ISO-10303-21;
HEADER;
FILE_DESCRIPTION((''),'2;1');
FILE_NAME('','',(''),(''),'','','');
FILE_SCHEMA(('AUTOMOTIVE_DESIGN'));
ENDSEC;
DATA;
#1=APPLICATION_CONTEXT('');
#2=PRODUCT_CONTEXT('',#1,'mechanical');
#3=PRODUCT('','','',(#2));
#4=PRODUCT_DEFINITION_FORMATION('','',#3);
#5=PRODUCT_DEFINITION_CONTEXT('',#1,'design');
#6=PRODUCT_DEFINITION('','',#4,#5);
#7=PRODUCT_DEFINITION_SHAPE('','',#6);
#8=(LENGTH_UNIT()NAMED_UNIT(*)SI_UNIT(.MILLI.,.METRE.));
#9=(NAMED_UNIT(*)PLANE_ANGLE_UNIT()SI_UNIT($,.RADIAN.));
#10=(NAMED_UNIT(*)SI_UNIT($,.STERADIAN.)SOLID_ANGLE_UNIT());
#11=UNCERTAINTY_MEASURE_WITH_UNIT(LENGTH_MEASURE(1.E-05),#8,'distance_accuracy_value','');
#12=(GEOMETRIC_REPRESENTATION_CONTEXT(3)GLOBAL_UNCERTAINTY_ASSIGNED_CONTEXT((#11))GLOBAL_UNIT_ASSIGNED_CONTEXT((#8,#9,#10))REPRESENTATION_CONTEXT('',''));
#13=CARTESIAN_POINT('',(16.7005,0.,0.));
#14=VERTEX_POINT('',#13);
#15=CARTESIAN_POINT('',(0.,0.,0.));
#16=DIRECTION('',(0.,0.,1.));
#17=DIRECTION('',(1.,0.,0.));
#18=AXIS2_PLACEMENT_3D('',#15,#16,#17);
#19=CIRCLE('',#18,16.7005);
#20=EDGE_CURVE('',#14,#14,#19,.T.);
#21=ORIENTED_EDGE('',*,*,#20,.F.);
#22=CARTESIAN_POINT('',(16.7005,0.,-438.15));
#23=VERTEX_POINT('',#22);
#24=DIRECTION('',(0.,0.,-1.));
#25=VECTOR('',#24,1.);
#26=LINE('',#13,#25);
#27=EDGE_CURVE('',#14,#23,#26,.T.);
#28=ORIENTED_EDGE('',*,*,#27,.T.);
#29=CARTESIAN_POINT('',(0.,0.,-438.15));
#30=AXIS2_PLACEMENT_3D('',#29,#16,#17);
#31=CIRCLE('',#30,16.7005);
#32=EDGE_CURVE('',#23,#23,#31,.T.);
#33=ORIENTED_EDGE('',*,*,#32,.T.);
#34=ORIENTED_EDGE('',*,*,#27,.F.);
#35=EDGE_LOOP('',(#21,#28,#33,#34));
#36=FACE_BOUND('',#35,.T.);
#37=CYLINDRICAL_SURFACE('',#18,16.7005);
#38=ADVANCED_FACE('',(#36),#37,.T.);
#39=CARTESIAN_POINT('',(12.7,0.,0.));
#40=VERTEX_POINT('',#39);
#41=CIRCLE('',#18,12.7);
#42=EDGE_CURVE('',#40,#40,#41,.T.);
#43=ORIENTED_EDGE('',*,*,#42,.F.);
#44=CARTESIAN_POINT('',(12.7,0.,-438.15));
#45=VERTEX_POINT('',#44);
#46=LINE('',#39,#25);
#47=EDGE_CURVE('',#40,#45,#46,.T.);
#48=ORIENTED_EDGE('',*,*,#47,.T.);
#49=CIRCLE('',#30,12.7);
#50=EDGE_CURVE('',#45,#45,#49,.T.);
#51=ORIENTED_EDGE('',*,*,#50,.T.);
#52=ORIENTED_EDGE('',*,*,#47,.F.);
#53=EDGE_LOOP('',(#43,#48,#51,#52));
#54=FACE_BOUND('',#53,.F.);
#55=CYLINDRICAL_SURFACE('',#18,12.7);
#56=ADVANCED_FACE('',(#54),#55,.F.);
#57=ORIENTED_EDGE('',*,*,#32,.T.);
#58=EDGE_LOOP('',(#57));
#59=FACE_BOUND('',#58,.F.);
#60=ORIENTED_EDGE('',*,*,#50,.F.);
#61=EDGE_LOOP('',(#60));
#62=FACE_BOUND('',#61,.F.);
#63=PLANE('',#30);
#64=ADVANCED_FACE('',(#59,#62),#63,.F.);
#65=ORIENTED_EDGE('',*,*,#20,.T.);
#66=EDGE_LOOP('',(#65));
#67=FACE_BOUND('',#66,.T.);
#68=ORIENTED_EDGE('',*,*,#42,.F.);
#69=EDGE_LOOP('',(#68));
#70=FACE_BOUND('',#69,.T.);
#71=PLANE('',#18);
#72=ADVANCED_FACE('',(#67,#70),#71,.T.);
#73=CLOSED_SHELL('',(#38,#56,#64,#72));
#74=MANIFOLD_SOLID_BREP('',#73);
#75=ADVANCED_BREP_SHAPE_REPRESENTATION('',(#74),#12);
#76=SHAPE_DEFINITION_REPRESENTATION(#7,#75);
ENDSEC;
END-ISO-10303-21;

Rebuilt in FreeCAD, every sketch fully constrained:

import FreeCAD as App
import Part
import Sketcher
Q = App.Units.Quantity

doc = App.newDocument("Part")
body = doc.addObject("PartDesign::Body", "Body")

# Sketch on XY plane
sketch1 = doc.addObject("Sketcher::SketchObject", "Sketch")
body.addObject(sketch1)
sketch1.AttachmentSupport = (doc.XY_Plane, [""])
sketch1.MapMode = "FlatFace"
sketch1.addGeometry(Part.Circle(App.Vector(0, 0, 0), App.Vector(0, 0, 1), 17), False)
sketch1.addGeometry(Part.Circle(App.Vector(0, 0, 0), App.Vector(0, 0, 1), 13), False)
sketch1.addConstraint(Sketcher.Constraint("Coincident", 0, 3, -1, 1))
sketch1.addConstraint(Sketcher.Constraint("Coincident", 1, 3, -1, 1))
sketch1.addConstraint(Sketcher.Constraint("Diameter", 1, Q("1 in")))
sketch1.addConstraint(Sketcher.Constraint("Diameter", 0, Q("1.315 in")))
pad1 = doc.addObject("PartDesign::Pad", "Pad")
body.addObject(pad1)
pad1.Profile = sketch1
pad1.Length = Q("17.25 in")
pad1.Reversed = True

doc.recompute()
